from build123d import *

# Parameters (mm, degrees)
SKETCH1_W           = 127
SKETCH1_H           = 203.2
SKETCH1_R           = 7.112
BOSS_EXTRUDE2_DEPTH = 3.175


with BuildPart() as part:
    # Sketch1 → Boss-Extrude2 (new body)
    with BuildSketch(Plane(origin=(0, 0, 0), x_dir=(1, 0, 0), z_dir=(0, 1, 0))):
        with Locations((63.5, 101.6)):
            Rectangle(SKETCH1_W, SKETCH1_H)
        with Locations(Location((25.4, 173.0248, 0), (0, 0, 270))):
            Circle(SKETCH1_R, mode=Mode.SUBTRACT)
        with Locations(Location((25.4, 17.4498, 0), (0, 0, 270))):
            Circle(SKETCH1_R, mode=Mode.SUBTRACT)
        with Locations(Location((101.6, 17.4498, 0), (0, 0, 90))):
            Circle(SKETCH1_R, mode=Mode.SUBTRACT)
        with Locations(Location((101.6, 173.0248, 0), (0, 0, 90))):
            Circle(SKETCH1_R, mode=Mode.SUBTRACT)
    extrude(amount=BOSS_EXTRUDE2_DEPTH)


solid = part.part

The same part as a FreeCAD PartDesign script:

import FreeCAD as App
import Part
import Sketcher
Q = App.Units.Quantity


def add_polygon(sketch, points):
    """Adds a closed chain of lines whose ends are joined by coincident constraints."""
    first, n = sketch.GeometryCount, len(points)
    for a, b in zip(points, points[1:] + points[:1]):
        sketch.addGeometry(Part.LineSegment(App.Vector(*a, 0), App.Vector(*b, 0)), False)
    for i in range(n):
        sketch.addConstraint(Sketcher.Constraint("Coincident", first + i, 2, first + (i + 1) % n, 1))

doc = App.newDocument("Part")
body = doc.addObject("PartDesign::Body", "Body")

# Sketch on XZ plane
sketch1 = body.newObject("Sketcher::SketchObject", "Sketch")
sketch1.AttachmentSupport = (doc.getObject("XZ_Plane"), [""])
sketch1.MapMode = "FlatFace"
add_polygon(sketch1, [(0, -203), (0, 0), (127, 0), (127, -203)])  # lines 0-3
sketch1.addGeometry(Part.Circle(App.Vector(25, -17, 0), App.Vector(0, 0, 1), 7), False)  # 4
sketch1.addGeometry(Part.Circle(App.Vector(102, -17, 0), App.Vector(0, 0, 1), 7), False)  # 5
sketch1.addGeometry(Part.Circle(App.Vector(25, -173, 0), App.Vector(0, 0, 1), 7), False)  # 6
sketch1.addGeometry(Part.Circle(App.Vector(102, -173, 0), App.Vector(0, 0, 1), 7), False)  # 7
sketch1.addConstraint(Sketcher.Constraint("Vertical", 0))
sketch1.addConstraint(Sketcher.Constraint("Horizontal", 1))
sketch1.addConstraint(Sketcher.Constraint("Vertical", 2))
sketch1.addConstraint(Sketcher.Constraint("Horizontal", 3))
sketch1.addConstraint(Sketcher.Constraint("Coincident", 0, 2, -1, 1))
sketch1.addConstraint(Sketcher.Constraint("Equal", 4, 5))
sketch1.addConstraint(Sketcher.Constraint("Equal", 5, 6))
sketch1.addConstraint(Sketcher.Constraint("Equal", 6, 7))
sketch1.addConstraint(Sketcher.Constraint("Horizontal", 4, 3, 5, 3))
sketch1.addConstraint(Sketcher.Constraint("Horizontal", 6, 3, 7, 3))
sketch1.addConstraint(Sketcher.Constraint("Vertical", 4, 3, 6, 3))
sketch1.addConstraint(Sketcher.Constraint("Vertical", 5, 3, 7, 3))
sketch1.addConstraint(Sketcher.Constraint("Diameter", 4, Q("0.56 in")))
sketch1.addConstraint(Sketcher.Constraint("DistanceX", 1, 1, 1, 2, Q("5 in")))
sketch1.addConstraint(Sketcher.Constraint("DistanceY", 0, 1, 0, 2, Q("8 in")))
sketch1.addConstraint(Sketcher.Constraint("DistanceX", -1, 1, 4, 3, Q("1 in")))
sketch1.addConstraint(Sketcher.Constraint("DistanceX", -1, 1, 5, 3, Q("4 in")))
sketch1.addConstraint(Sketcher.Constraint("DistanceY", 4, 3, -1, 1, Q("0.687 in")))
sketch1.addConstraint(Sketcher.Constraint("DistanceY", 6, 3, -1, 1, Q("6.812 in")))
pad1 = body.newObject("PartDesign::Pad", "Pad")
pad1.Profile = sketch1
pad1.Length = Q("0.125 in")
pad1.Reversed = True

doc.recompute()
